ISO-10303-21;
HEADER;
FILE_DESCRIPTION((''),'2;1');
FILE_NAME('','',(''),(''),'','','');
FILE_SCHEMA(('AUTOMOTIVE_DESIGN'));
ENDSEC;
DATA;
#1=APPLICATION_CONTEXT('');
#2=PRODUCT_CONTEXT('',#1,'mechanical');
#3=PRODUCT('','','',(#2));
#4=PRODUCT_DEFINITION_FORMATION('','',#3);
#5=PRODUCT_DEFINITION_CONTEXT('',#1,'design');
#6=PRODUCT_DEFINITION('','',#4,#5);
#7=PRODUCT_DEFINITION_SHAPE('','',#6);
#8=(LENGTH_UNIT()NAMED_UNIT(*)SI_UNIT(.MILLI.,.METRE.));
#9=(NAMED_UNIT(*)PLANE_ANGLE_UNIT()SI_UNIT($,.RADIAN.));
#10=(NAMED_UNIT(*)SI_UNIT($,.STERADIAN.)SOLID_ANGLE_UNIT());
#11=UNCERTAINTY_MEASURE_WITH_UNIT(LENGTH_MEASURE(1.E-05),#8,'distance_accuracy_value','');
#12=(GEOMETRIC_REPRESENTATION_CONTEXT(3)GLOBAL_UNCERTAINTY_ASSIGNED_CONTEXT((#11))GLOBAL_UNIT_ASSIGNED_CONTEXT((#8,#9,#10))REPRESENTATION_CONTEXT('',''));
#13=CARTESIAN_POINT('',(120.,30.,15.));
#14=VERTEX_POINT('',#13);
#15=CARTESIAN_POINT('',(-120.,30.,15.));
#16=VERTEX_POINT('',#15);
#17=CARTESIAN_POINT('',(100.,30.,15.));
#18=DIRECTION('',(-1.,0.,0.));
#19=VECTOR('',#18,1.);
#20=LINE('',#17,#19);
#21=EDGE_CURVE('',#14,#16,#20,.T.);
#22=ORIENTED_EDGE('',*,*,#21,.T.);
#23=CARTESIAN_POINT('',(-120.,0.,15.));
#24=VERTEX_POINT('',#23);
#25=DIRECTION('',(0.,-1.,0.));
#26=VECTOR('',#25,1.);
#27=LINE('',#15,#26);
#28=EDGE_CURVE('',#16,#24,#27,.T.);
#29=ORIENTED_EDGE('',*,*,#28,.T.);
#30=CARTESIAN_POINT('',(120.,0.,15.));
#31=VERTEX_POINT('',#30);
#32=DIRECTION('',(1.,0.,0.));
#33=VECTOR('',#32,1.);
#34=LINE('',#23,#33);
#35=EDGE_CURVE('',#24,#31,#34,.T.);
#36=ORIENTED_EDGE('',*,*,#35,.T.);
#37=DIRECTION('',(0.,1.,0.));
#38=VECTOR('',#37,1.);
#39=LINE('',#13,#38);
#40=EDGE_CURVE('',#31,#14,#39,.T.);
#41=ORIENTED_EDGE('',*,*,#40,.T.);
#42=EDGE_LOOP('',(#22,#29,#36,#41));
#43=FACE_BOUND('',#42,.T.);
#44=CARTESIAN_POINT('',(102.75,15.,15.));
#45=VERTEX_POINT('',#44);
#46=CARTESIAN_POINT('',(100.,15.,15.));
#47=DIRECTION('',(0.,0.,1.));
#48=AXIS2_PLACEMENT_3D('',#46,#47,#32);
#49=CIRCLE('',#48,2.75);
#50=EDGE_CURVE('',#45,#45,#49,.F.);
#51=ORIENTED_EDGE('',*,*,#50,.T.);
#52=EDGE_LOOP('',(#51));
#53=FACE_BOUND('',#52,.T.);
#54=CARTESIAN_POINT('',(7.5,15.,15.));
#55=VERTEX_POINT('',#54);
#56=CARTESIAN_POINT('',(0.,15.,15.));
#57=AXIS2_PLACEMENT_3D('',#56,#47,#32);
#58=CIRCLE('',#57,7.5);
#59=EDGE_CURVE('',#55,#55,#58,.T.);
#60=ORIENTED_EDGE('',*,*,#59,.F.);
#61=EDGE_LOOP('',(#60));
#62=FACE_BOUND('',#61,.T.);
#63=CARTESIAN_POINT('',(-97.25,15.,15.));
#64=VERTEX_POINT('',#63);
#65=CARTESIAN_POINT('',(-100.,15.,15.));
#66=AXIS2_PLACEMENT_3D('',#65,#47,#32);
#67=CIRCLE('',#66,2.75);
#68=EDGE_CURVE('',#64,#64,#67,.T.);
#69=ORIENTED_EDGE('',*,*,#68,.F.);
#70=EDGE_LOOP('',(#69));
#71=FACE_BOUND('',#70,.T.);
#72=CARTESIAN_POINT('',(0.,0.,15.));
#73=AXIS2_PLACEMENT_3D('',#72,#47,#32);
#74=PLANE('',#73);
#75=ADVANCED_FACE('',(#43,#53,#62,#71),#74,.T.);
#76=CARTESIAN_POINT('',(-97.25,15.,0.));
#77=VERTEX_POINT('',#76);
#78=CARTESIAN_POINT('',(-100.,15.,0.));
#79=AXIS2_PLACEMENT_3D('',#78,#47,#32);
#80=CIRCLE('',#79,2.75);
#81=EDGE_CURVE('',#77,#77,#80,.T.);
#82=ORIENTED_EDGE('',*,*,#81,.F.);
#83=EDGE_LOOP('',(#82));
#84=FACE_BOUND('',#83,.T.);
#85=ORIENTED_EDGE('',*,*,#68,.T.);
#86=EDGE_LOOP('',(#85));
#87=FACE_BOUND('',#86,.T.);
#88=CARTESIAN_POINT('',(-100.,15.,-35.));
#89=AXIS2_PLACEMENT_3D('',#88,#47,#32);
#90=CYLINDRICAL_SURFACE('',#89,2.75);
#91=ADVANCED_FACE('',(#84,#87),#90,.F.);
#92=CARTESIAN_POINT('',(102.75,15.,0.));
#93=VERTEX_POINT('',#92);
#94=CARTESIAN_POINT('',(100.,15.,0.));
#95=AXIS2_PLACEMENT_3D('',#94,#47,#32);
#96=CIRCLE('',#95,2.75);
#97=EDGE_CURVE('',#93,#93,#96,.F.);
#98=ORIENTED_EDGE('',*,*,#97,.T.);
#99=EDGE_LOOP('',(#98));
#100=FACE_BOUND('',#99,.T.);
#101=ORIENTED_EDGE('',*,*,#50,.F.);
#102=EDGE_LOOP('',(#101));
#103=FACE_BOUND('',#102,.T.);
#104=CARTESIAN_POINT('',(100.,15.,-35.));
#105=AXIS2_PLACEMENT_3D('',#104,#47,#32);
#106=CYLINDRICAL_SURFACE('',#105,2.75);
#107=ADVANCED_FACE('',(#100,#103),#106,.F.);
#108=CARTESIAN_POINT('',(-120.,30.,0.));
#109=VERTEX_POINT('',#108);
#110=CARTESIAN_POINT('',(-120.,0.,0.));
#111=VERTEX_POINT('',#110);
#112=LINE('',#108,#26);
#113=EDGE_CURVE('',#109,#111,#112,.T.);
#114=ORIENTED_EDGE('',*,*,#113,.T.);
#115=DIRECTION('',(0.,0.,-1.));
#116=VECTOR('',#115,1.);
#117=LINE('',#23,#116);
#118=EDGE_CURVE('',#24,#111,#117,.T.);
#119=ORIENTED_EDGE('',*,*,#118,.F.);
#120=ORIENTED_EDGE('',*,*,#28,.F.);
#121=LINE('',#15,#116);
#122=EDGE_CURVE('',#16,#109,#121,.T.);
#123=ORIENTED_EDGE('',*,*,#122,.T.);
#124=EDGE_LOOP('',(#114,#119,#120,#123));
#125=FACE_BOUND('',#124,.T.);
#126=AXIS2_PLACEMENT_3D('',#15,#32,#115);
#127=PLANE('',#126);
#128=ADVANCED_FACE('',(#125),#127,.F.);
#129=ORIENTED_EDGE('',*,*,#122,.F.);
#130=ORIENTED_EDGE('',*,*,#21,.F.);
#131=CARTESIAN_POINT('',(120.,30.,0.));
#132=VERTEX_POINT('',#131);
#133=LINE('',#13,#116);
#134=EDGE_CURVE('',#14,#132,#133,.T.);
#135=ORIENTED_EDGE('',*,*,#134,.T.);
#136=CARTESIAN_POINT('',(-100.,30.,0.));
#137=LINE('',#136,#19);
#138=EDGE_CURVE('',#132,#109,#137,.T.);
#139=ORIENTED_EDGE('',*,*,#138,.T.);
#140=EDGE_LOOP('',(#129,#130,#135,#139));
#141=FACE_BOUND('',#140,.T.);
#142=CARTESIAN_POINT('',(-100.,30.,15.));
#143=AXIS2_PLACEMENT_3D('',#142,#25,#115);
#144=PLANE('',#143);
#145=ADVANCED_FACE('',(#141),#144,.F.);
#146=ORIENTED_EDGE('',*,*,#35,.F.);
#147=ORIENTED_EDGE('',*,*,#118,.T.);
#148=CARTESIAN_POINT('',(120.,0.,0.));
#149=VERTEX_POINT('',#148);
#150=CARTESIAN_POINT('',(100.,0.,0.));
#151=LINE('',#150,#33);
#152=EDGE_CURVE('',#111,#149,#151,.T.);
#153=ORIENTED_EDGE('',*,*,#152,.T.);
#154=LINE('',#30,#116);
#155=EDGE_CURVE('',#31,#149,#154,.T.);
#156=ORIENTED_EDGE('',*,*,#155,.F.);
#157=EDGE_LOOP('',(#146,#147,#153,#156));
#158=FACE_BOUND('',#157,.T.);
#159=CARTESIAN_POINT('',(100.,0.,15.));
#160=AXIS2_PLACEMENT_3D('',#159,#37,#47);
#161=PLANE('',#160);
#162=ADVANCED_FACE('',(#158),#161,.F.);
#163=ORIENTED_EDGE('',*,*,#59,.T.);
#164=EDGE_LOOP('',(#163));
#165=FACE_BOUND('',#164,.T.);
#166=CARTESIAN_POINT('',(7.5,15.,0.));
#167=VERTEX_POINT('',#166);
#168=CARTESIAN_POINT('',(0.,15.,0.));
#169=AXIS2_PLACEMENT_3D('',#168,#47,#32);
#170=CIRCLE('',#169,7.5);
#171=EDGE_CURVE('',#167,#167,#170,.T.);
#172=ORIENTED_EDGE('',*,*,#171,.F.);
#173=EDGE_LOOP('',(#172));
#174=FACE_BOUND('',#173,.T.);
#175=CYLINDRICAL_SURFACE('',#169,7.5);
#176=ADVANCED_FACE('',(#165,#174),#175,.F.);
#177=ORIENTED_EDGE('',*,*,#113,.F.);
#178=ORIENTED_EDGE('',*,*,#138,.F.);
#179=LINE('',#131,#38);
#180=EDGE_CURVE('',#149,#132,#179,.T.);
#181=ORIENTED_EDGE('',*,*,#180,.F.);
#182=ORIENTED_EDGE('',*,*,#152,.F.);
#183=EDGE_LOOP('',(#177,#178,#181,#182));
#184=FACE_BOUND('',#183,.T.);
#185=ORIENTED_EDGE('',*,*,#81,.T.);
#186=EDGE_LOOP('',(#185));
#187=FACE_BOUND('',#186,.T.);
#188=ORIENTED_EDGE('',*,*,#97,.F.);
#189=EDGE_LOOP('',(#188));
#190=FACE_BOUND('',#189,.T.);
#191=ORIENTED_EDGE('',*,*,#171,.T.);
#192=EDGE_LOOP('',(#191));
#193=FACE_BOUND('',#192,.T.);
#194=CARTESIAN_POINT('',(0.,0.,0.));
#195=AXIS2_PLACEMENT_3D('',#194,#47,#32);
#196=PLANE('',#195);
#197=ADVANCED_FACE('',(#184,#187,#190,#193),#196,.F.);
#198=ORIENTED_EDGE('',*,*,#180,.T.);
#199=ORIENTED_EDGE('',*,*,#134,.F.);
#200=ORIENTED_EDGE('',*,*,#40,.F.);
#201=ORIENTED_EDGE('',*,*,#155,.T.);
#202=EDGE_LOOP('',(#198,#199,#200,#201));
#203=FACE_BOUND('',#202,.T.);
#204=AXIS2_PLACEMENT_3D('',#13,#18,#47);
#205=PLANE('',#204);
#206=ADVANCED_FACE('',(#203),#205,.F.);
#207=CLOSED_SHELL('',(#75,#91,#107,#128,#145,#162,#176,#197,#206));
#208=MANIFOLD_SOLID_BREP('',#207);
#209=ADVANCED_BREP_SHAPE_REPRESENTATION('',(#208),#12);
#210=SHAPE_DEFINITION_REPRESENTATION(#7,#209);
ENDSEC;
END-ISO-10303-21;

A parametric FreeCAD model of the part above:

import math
import FreeCAD as App
import Part
import Sketcher

V = App.Vector
Q = App.Units.Quantity

doc = App.newDocument("Part")
body = doc.addObject("PartDesign::Body", "Body")

# Sketch on XY plane
sketch1 = body.newObject("Sketcher::SketchObject", "Sketch")
sketch1.AttachmentSupport = (doc.getObject("XY_Plane"), [""])
sketch1.MapMode = "FlatFace"
sketch1.addGeometry([
    Part.LineSegment(V(-120, 0, 0), V(120, 0, 0)),
    Part.LineSegment(V(120, 0, 0), V(120, 30, 0)),
    Part.LineSegment(V(120, 30, 0), V(-120, 30, 0)),
    Part.LineSegment(V(-120, 30, 0), V(-120, 0, 0)),
], False)
sketch1.addConstraint([
    Sketcher.Constraint("Coincident", 0, 2, 1, 1),
    Sketcher.Constraint("Coincident", 1, 2, 2, 1),
    Sketcher.Constraint("Coincident", 2, 2, 3, 1),
    Sketcher.Constraint("Coincident", 3, 2, 0, 1),
    Sketcher.Constraint("Horizontal", 0),
    Sketcher.Constraint("Vertical", 1),
    Sketcher.Constraint("Horizontal", 2),
    Sketcher.Constraint("Vertical", 3),
    Sketcher.Constraint("Symmetric", 0, 2, 3, 2, -1, 1),
    Sketcher.Constraint("DistanceX", 0, 1, 0, 2, Q("240 mm")),
    Sketcher.Constraint("DistanceY", 1, 1, 1, 2, Q("30 mm")),
])
pad1 = body.newObject("PartDesign::Pad", "Pad")
pad1.Profile = sketch1
pad1.Length = 15

# Sketch on XY plane
sketch2 = body.newObject("Sketcher::SketchObject", "Sketch001")
sketch2.AttachmentSupport = (doc.getObject("XY_Plane"), [""])
sketch2.MapMode = "FlatFace"
sketch2.AttachmentOffset = App.Placement(V(0, 0, 15), App.Rotation())
sketch2.addGeometry([
    Part.ArcOfCircle(Part.Circle(V(0, 15, 0), V(0, 0, 1), 7.5), math.radians(0), math.radians(90)),
    Part.ArcOfCircle(Part.Circle(V(0, 15, 0), V(0, 0, 1), 7.5), math.radians(90), math.radians(270)),
    Part.ArcOfCircle(Part.Circle(V(0, 15, 0), V(0, 0, 1), 7.5), math.radians(-90), math.radians(0)),
], False)
sketch2.addConstraint([
    Sketcher.Constraint("Tangent", 0, 2, 1, 1),
    Sketcher.Constraint("Tangent", 1, 2, 2, 1),
    Sketcher.Constraint("Tangent", 2, 2, 0, 1),
    Sketcher.Constraint("PointOnObject", 0, 3, -2),
    Sketcher.Constraint("PointOnObject", 0, 2, -2),
    Sketcher.Constraint("PointOnObject", 1, 2, -2),
    Sketcher.Constraint("Horizontal", 1, 3, 2, 2),
    Sketcher.Constraint("Radius", 0, Q("7.5 mm")),
    Sketcher.Constraint("DistanceY", -1, 1, 0, 3, Q("15 mm")),
])
pocket1 = body.newObject("PartDesign::Pocket", "Pocket")
pocket1.Profile = sketch2
pocket1.Length = 15

# Sketch on XY plane
sketch3 = body.newObject("Sketcher::SketchObject", "Sketch002")
sketch3.AttachmentSupport = (doc.getObject("XY_Plane"), [""])
sketch3.MapMode = "FlatFace"
sketch3.AttachmentOffset = App.Placement(V(0, 0, 15), App.Rotation())
sketch3.addGeometry([
    Part.Circle(V(-100, 15, 0), V(0, 0, 1), 2.75),
    Part.Circle(V(100, 15, 0), V(0, 0, 1), 2.75),
], False)
sketch3.addConstraint([
    Sketcher.Constraint("Equal", 0, 1),
    Sketcher.Constraint("Symmetric", 0, 3, 1, 3, -2),
    Sketcher.Constraint("Diameter", 0, Q("5.5 mm")),
    Sketcher.Constraint("DistanceX", 0, 3, -1, 1, Q("100 mm")),
    Sketcher.Constraint("DistanceY", -1, 1, 0, 3, Q("15 mm")),
])
pocket2 = body.newObject("PartDesign::Pocket", "Pocket001")
pocket2.Profile = sketch3
pocket2.Length = 50

doc.recompute()
